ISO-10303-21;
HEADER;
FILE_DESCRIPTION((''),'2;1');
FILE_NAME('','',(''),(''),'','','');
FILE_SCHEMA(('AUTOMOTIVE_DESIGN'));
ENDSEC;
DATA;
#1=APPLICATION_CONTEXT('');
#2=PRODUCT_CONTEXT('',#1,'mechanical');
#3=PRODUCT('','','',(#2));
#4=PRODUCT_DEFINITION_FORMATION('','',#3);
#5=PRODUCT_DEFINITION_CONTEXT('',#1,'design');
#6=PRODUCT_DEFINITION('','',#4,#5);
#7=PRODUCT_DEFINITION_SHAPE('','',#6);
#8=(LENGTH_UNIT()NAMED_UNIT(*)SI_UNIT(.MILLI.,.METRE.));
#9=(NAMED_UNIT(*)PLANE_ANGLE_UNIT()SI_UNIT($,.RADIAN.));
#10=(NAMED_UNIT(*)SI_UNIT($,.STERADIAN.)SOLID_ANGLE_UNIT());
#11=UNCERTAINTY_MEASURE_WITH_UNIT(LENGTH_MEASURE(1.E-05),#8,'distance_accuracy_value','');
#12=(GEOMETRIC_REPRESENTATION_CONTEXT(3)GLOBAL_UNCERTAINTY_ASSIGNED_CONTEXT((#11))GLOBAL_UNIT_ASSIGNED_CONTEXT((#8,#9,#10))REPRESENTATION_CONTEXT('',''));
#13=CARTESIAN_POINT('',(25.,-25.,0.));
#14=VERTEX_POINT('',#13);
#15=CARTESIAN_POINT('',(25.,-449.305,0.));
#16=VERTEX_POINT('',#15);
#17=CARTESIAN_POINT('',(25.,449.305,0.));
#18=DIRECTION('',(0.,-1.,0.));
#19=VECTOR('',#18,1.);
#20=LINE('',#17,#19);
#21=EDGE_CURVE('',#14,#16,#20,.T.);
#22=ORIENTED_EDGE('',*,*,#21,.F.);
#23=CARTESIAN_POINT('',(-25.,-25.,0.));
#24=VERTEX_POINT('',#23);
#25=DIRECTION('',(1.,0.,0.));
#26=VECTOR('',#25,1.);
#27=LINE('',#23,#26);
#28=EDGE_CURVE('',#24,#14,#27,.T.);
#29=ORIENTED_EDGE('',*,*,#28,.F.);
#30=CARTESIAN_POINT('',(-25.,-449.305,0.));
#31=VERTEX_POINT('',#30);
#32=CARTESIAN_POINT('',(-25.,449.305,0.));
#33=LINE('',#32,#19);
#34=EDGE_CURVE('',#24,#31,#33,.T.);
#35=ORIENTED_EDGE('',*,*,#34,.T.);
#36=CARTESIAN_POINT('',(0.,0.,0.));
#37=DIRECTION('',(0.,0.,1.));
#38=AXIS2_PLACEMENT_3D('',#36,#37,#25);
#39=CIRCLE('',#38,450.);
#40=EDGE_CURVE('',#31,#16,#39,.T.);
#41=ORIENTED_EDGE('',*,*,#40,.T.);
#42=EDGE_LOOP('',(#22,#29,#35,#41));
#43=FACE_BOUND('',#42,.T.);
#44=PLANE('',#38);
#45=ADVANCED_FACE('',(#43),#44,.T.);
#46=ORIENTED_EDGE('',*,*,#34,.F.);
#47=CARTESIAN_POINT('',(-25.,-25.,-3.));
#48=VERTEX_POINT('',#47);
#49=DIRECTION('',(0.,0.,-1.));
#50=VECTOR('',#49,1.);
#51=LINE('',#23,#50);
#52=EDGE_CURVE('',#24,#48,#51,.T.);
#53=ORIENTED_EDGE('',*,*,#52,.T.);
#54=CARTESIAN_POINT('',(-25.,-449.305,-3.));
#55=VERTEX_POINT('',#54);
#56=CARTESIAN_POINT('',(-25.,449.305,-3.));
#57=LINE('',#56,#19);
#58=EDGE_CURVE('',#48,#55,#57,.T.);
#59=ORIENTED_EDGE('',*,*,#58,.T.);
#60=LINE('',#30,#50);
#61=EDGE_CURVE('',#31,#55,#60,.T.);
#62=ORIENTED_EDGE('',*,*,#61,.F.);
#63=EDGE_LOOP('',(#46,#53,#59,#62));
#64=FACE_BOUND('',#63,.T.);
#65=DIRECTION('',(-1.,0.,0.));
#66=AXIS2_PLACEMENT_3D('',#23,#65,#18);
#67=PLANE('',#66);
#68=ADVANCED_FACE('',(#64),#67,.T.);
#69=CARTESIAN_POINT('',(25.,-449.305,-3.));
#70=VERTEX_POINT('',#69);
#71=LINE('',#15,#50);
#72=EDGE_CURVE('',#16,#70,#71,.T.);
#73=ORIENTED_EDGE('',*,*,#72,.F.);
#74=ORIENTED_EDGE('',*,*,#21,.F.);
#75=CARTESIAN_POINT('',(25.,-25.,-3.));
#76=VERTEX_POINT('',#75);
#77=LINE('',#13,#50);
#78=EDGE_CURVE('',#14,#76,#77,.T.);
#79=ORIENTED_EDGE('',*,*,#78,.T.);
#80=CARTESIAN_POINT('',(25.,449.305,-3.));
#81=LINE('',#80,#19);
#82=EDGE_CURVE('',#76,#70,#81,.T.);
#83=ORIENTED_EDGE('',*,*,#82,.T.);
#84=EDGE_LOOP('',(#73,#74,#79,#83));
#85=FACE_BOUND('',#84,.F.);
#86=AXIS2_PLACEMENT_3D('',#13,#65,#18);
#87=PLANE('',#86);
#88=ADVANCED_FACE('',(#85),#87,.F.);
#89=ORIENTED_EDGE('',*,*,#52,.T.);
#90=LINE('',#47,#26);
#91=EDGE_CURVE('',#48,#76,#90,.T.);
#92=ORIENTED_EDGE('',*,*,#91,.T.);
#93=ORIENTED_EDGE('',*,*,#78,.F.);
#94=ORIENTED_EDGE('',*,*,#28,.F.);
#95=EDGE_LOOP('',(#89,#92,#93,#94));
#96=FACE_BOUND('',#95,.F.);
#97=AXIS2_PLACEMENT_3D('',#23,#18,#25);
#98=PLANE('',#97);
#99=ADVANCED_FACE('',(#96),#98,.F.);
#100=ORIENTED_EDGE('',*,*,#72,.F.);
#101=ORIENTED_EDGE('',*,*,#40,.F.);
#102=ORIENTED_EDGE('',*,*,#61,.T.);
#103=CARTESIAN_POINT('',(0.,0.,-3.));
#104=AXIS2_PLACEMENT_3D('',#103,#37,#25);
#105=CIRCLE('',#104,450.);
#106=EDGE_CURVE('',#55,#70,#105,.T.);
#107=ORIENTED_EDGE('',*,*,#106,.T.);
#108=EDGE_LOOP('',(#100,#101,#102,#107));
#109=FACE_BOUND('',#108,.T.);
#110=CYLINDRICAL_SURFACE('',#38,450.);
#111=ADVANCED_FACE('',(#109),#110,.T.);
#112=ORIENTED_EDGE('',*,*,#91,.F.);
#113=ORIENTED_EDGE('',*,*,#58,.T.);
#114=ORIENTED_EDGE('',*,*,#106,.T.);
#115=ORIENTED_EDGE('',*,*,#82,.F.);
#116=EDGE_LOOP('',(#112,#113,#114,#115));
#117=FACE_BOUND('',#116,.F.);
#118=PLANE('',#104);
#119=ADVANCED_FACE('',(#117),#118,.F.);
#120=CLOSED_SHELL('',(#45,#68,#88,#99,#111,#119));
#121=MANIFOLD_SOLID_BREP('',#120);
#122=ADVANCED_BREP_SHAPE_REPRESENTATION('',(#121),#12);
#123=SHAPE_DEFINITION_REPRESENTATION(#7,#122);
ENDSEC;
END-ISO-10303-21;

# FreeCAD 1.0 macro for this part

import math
import FreeCAD as App
import Part
import Sketcher
from FreeCAD import Vector
Q = App.Units.Quantity

doc = App.newDocument("Part")
body = doc.addObject("PartDesign::Body", "Body")

sketch1 = body.newObject("Sketcher::SketchObject", "Sketch")
sketch1.AttachmentSupport = (doc.getObject("XY_Plane"), [""])
sketch1.MapMode = "FlatFace"
sketch1.addGeometry(Part.ArcOfCircle(Part.Circle(Vector(0, 0, 0), Vector(0, 0, 1), 450), math.radians(-93.184739), math.radians(-86.815261)), False)
sketch1.addGeometry(Part.LineSegment(Vector(25, -449.305, 0), Vector(25, -25, 0)), False)
sketch1.addGeometry(Part.LineSegment(Vector(25, -25, 0), Vector(-25, -25, 0)), False)
sketch1.addGeometry(Part.LineSegment(Vector(-25, -25, 0), Vector(-25, -449.305, 0)), False)
sketch1.addConstraint(Sketcher.Constraint("Coincident", 0, 2, 1, 1))
sketch1.addConstraint(Sketcher.Constraint("Coincident", 1, 2, 2, 1))
sketch1.addConstraint(Sketcher.Constraint("Coincident", 2, 2, 3, 1))
sketch1.addConstraint(Sketcher.Constraint("Coincident", 3, 2, 0, 1))
sketch1.addConstraint(Sketcher.Constraint("Vertical", 1))
sketch1.addConstraint(Sketcher.Constraint("Horizontal", 2))
sketch1.addConstraint(Sketcher.Constraint("Vertical", 3))
sketch1.addConstraint(Sketcher.Constraint("Coincident", 0, 3, -1, 1))
sketch1.addConstraint(Sketcher.Constraint("Equal", 1, 3))
sketch1.addConstraint(Sketcher.Constraint("Radius", 0, Q("450 mm")))
sketch1.addConstraint(Sketcher.Constraint("DistanceX", -1, 1, 1, 2, Q("25 mm")))
sketch1.addConstraint(Sketcher.Constraint("DistanceY", 1, 2, -1, 1, Q("25 mm")))
pad1 = body.newObject("PartDesign::Pad", "Pad")
pad1.Profile = sketch1
pad1.Length = 3
pad1.Reversed = True

doc.recompute()
